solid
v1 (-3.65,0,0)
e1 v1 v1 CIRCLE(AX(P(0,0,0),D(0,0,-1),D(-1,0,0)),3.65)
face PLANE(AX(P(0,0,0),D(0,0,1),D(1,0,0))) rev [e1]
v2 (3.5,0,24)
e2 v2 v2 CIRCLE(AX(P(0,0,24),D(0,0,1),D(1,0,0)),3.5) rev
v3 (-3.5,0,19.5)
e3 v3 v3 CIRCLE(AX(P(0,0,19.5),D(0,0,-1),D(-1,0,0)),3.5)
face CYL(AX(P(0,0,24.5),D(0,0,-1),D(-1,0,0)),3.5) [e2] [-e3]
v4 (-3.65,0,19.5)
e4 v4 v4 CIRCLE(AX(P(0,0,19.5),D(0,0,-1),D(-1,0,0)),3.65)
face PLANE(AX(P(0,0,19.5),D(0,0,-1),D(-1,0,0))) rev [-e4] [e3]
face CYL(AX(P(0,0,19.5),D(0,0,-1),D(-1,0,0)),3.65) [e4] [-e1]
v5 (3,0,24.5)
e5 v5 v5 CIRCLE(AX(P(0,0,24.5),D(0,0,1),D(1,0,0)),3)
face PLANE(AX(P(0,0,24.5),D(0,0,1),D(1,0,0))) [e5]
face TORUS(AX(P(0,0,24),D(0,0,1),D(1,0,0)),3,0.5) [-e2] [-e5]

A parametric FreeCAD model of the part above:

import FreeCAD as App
import Part
import Sketcher
from FreeCAD import Vector
Q = App.Units.Quantity


def edges_at(feature, points):
    """Names of the edges that pass closest to the given points."""
    edges = feature.Shape.Edges
    near = lambda p: min(range(len(edges)), key=lambda i: edges[i].distToShape(Part.Vertex(*p))[0])
    return sorted({f"Edge{near(p) + 1}" for p in points})

doc = App.newDocument("Part")
body = doc.addObject("PartDesign::Body", "Body")

# Sketch on XY plane
sketch1 = body.newObject("Sketcher::SketchObject", "Sketch")
sketch1.AttachmentSupport = (doc.getObject("XY_Plane"), [""])
sketch1.MapMode = "FlatFace"
sketch1.addGeometry(Part.Circle(Vector(0, 0, 0), Vector(0, 0, 1), 3.5), False)
sketch1.addConstraint(Sketcher.Constraint("Coincident", 0, 3, -1, 1))
sketch1.addConstraint(Sketcher.Constraint("Diameter", 0, Q("7 mm")))
pad1 = body.newObject("PartDesign::Pad", "Pad")
pad1.Profile = sketch1
pad1.Length = 24.5
doc.recompute()

fillet = body.newObject("PartDesign::Fillet", "Fillet")
fillet.Base = (pad1, edges_at(pad1, [(-3.5, 0, 24.5)]))
fillet.Radius = 0.5

# Sketch on XY plane
sketch2 = body.newObject("Sketcher::SketchObject", "Sketch001")
sketch2.AttachmentSupport = (doc.getObject("XY_Plane"), [""])
sketch2.MapMode = "FlatFace"
sketch2.addGeometry(Part.Circle(Vector(0, 0, 0), Vector(0, 0, 1), 3.6), False)
sketch2.addConstraint(Sketcher.Constraint("Coincident", 0, 3, -1, 1))
sketch2.addConstraint(Sketcher.Constraint("Diameter", 0, Q("7.3 mm")))
pad2 = body.newObject("PartDesign::Pad", "Pad001")
pad2.Profile = sketch2
pad2.Length = 19.5

doc.recompute()
